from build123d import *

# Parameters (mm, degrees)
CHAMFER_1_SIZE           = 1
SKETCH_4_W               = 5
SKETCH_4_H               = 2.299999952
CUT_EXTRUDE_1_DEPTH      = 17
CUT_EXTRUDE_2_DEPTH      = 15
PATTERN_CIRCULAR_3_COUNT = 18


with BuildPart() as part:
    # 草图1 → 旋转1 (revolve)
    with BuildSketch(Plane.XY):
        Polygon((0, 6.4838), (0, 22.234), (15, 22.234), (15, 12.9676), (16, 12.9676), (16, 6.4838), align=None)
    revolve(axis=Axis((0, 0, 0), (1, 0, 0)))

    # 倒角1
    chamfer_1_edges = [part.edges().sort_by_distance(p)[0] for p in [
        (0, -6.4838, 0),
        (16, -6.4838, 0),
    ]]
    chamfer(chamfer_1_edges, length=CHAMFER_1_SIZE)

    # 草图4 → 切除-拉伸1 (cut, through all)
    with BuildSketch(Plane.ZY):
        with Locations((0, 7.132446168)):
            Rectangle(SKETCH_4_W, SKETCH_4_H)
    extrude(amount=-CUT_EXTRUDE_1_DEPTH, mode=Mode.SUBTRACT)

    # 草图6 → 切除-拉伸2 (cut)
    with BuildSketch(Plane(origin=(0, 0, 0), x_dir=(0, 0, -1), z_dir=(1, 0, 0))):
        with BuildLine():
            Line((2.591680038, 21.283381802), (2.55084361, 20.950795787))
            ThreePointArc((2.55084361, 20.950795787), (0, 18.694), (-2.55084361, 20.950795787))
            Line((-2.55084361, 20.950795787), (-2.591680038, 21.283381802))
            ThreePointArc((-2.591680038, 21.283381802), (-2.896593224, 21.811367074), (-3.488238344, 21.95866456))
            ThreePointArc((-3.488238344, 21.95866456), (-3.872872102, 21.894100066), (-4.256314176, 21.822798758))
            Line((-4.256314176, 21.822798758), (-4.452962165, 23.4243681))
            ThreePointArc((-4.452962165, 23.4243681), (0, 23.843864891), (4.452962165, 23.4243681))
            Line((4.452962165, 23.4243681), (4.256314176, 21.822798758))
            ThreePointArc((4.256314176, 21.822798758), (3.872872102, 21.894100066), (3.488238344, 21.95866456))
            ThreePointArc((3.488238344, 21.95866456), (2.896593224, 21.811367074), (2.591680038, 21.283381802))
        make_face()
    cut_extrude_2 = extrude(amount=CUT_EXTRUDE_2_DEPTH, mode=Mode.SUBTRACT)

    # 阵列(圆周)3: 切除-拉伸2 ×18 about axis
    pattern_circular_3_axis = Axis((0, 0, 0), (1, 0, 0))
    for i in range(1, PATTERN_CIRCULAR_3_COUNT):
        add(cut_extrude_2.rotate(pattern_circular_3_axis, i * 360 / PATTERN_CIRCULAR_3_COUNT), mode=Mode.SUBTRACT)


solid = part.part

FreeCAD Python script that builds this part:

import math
import FreeCAD as App
import Part
import Sketcher

V = App.Vector
Q = App.Units.Quantity


def edges_at(feature, points):
    """Names of the edges that pass closest to the given points."""
    edges = feature.Shape.Edges
    near = lambda p: min(range(len(edges)), key=lambda i: edges[i].distToShape(Part.Vertex(*p))[0])
    return sorted({f"Edge{near(p) + 1}" for p in points})


def add_polygon(sketch, points):
    """Adds a closed chain of lines whose ends are joined by coincident constraints."""
    first, n = sketch.GeometryCount, len(points)
    for a, b in zip(points, points[1:] + points[:1]):
        sketch.addGeometry(Part.LineSegment(App.Vector(*a, 0), App.Vector(*b, 0)), False)
    for i in range(n):
        sketch.addConstraint(Sketcher.Constraint("Coincident", first + i, 2, first + (i + 1) % n, 1))

doc = App.newDocument("Part")
body = doc.addObject("PartDesign::Body", "Body")

# Sketch on XY plane
sketch1 = body.newObject("Sketcher::SketchObject", "Sketch")
sketch1.AttachmentSupport = (doc.getObject("XY_Plane"), [""])
sketch1.MapMode = "FlatFace"
add_polygon(sketch1, [(0, 22.2), (0, 6.5), (16, 6.5), (16, 13), (15, 13), (15, 22.2)])  # lines 0-5
sketch1.addConstraint([
    Sketcher.Constraint("Vertical", 0),
    Sketcher.Constraint("Horizontal", 1),
    Sketcher.Constraint("Vertical", 2),
    Sketcher.Constraint("Horizontal", 3),
    Sketcher.Constraint("Vertical", 4),
    Sketcher.Constraint("Horizontal", 5),
    Sketcher.Constraint("PointOnObject", 0, 2, -2),
    Sketcher.Constraint("DistanceX", 1, 1, 1, 2, 16.0),
    Sketcher.Constraint("DistanceX", 3, 2, 3, 1, 1.0),
    Sketcher.Constraint("DistanceY", 0, 2, 0, 1, 15.7502),
    Sketcher.Constraint("DistanceY", 2, 1, 2, 2, 6.4838),
    Sketcher.Constraint("DistanceY", -1, 1, 4, 2, 22.234),
])
revolution = body.newObject("PartDesign::Revolution", "Revolution")
revolution.Profile = sketch1
revolution.ReferenceAxis = (sketch1, ["H_Axis"])
revolution.Angle = 360
doc.recompute()

chamfer = body.newObject("PartDesign::Chamfer", "Chamfer")
chamfer.Base = (revolution, edges_at(revolution, [(0, -6.484, 0), (16, -6.484, 0)]))
chamfer.Size = 1

# Sketch on YZ plane
sketch2 = body.newObject("Sketcher::SketchObject", "Sketch001")
sketch2.AttachmentSupport = (doc.getObject("YZ_Plane"), [""])
sketch2.MapMode = "FlatFace"
add_polygon(sketch2, [(8.3, -2.5), (6, -2.5), (6, 2.5), (8.3, 2.5)])  # lines 0-3
sketch2.addConstraint([
    Sketcher.Constraint("Horizontal", 0),
    Sketcher.Constraint("Vertical", 1),
    Sketcher.Constraint("Horizontal", 2),
    Sketcher.Constraint("Vertical", 3),
    Sketcher.Constraint("DistanceY", 1, 1, 1, 2, 5.0),
    Sketcher.Constraint("DistanceX", 0, 2, 0, 1, 2.3),
    Sketcher.Constraint("DistanceY", 0, 2, -1, 1, 2.5),
    Sketcher.Constraint("DistanceX", -1, 1, 0, 2, 5.982446),
])
pocket1 = body.newObject("PartDesign::Pocket", "Pocket")
pocket1.Profile = sketch2
pocket1.Type = "ThroughAll"
pocket1.Reversed = True

# Sketch on YZ plane
sketch3 = body.newObject("Sketcher::SketchObject", "Sketch002")
sketch3.AttachmentSupport = (doc.getObject("YZ_Plane"), [""])
sketch3.MapMode = "FlatFace"
sketch3.addGeometry([
    Part.LineSegment(V(20.95, -2.55, 0), V(21.28, -2.59, 0)),  # 0
    Part.ArcOfCircle(Part.Circle(V(21.19, -3.37, 0), V(0, 0, 1), 0.78), math.radians(-9), math.radians(83)),  # 1
    Part.ArcOfCircle(Part.Circle(V(0, 0, 0), V(0, 0, 1), 22.23), math.radians(-11.04), math.radians(-9.03)),  # 2
    Part.LineSegment(V(21.82, -4.26, 0), V(23.42, -4.45, 0)),  # 3
    Part.ArcOfCircle(Part.Circle(V(0, 0, 0), V(0, 0, 1), 23.84), math.radians(-11), math.radians(11)),  # 4
    Part.LineSegment(V(23.42, 4.45, 0), V(21.82, 4.26, 0)),  # 5
    Part.ArcOfCircle(Part.Circle(V(0, 0, 0), V(0, 0, 1), 22.23), math.radians(9.03), math.radians(11.04)),  # 6
    Part.ArcOfCircle(Part.Circle(V(21.19, 3.37, 0), V(0, 0, 1), 0.78), math.radians(-83), math.radians(9)),  # 7
    Part.LineSegment(V(21.28, 2.59, 0), V(20.95, 2.55, 0)),  # 8
    Part.ArcOfCircle(Part.Circle(V(21.26, 0, 0), V(0, 0, 1), 2.57), math.radians(97), math.radians(263)),  # 9
], False)
sketch3.addConstraint([
    Sketcher.Constraint("Tangent", 0, 2, 1, 2),
    Sketcher.Constraint("Tangent", 1, 1, 2, 2),
    Sketcher.Constraint("Coincident", 2, 1, 3, 1),
    Sketcher.Constraint("Coincident", 3, 2, 4, 1),
    Sketcher.Constraint("Coincident", 4, 2, 5, 1),
    Sketcher.Constraint("Coincident", 5, 2, 6, 2),
    Sketcher.Constraint("Tangent", 6, 1, 7, 2),
    Sketcher.Constraint("Tangent", 7, 1, 8, 1),
    Sketcher.Constraint("Tangent", 8, 2, 9, 1),
    Sketcher.Constraint("Tangent", 9, 2, 0, 1),
    Sketcher.Constraint("Coincident", 2, 3, -1, 1),
    Sketcher.Constraint("Coincident", 4, 3, -1, 1),
    Sketcher.Constraint("Coincident", 6, 3, -1, 1),
    Sketcher.Constraint("Equal", 2, 6),
    Sketcher.Constraint("Equal", 1, 7),
    Sketcher.Constraint("Symmetric", 0, 2, 7, 1, -1),
    Sketcher.Constraint("Parallel", 0, 3),
    Sketcher.Constraint("Parallel", 5, 8),
    Sketcher.Constraint("Vertical", 3, 2, 4, 2),
    Sketcher.Constraint("Angle", 0, Q("-7 deg")),
    Sketcher.Constraint("Radius", 1, 0.78),
    Sketcher.Constraint("Radius", 9, 2.57),
    Sketcher.Constraint("DistanceX", -1, 1, 9, 3, 21.264),
    Sketcher.Constraint("Radius", 2, 22.233997),
    Sketcher.Constraint("Radius", 4, 23.843865),
    Sketcher.Constraint("DistanceX", -1, 1, 2, 1, 21.822799),
])
pocket2 = body.newObject("PartDesign::Pocket", "Pocket001")
pocket2.Profile = sketch3
pocket2.Length = 15
pocket2.Reversed = True
doc.recompute()

polarpattern = body.newObject("PartDesign::PolarPattern", "PolarPattern")
polarpattern.Originals = [pocket2]
polarpattern.Axis = (doc.getObject("X_Axis"), [""])
polarpattern.Angle = 360
polarpattern.Occurrences = 18
body.Tip = polarpattern

doc.recompute()
